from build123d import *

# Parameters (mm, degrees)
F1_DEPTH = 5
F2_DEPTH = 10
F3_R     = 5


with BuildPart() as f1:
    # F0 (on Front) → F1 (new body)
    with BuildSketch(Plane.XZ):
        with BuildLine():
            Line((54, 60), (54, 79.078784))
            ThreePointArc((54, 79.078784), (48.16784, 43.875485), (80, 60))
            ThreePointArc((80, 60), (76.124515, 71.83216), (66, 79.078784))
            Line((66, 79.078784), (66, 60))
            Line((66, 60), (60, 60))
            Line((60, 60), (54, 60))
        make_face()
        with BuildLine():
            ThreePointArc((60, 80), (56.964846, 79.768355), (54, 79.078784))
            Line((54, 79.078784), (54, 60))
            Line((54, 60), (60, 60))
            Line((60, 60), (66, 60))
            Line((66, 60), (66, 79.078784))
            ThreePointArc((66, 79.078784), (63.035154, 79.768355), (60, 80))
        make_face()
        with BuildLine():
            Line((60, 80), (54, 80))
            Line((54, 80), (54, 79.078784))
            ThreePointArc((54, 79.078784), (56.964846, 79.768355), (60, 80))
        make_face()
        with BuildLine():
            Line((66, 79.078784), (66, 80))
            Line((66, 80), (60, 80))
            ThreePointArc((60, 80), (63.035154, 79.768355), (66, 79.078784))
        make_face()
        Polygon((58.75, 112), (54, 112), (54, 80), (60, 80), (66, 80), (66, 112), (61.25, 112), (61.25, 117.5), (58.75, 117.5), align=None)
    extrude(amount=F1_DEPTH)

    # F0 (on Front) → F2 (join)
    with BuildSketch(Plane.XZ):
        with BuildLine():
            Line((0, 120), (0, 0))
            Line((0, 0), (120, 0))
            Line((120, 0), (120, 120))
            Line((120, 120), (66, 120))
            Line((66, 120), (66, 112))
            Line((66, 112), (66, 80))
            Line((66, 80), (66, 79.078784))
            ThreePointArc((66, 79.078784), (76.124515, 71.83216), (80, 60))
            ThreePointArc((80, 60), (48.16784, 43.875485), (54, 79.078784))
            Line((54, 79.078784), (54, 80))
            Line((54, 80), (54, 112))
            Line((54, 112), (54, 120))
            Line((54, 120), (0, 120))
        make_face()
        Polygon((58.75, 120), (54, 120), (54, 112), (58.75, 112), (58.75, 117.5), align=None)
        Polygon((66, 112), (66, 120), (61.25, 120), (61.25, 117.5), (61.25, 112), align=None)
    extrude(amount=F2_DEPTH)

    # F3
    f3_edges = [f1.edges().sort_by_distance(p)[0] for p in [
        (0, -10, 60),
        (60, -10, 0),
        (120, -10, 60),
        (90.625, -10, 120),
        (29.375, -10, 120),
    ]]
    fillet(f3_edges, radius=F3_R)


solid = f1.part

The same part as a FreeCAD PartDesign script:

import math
import FreeCAD as App
import Part
import Sketcher
Q = App.Units.Quantity


def edges_at(feature, points):
    """Names of the edges that pass closest to the given points."""
    edges = feature.Shape.Edges
    near = lambda p: min(range(len(edges)), key=lambda i: edges[i].distToShape(Part.Vertex(*p))[0])
    return sorted({f"Edge{near(p) + 1}" for p in points})

doc = App.newDocument("Part")
body = doc.addObject("PartDesign::Body", "Body")

# Sketch on XZ plane
sketch1 = body.newObject("Sketcher::SketchObject", "Sketch")
sketch1.AttachmentSupport = (doc.getObject("XZ_Plane"), [""])
sketch1.MapMode = "FlatFace"
sketch1.addGeometry(Part.ArcOfCircle(Part.Circle(App.Vector(60, 60, 0), App.Vector(0, 0, 1), 20), math.radians(107), math.radians(360)), False)
sketch1.addGeometry(Part.ArcOfCircle(Part.Circle(App.Vector(60, 60, 0), App.Vector(0, 0, 1), 20), math.radians(0), math.radians(73)), False)
sketch1.addGeometry(Part.LineSegment(App.Vector(66, 79.1, 0), App.Vector(66, 112, 0)), False)
sketch1.addGeometry(Part.LineSegment(App.Vector(66, 112, 0), App.Vector(61.2, 112, 0)), False)
sketch1.addGeometry(Part.LineSegment(App.Vector(61.2, 112, 0), App.Vector(61.2, 117.5, 0)), False)
sketch1.addGeometry(Part.LineSegment(App.Vector(61.2, 117.5, 0), App.Vector(58.8, 117.5, 0)), False)
sketch1.addGeometry(Part.LineSegment(App.Vector(58.8, 117.5, 0), App.Vector(58.8, 112, 0)), False)
sketch1.addGeometry(Part.LineSegment(App.Vector(58.8, 112, 0), App.Vector(54, 112, 0)), False)
sketch1.addGeometry(Part.LineSegment(App.Vector(54, 112, 0), App.Vector(54, 79.1, 0)), False)
sketch1.addConstraint(Sketcher.Constraint("Tangent", 0, 2, 1, 1))
sketch1.addConstraint(Sketcher.Constraint("Coincident", 1, 2, 2, 1))
sketch1.addConstraint(Sketcher.Constraint("Coincident", 2, 2, 3, 1))
sketch1.addConstraint(Sketcher.Constraint("Coincident", 3, 2, 4, 1))
sketch1.addConstraint(Sketcher.Constraint("Coincident", 4, 2, 5, 1))
sketch1.addConstraint(Sketcher.Constraint("Coincident", 5, 2, 6, 1))
sketch1.addConstraint(Sketcher.Constraint("Coincident", 6, 2, 7, 1))
sketch1.addConstraint(Sketcher.Constraint("Coincident", 7, 2, 8, 1))
sketch1.addConstraint(Sketcher.Constraint("Coincident", 8, 2, 0, 1))
sketch1.addConstraint(Sketcher.Constraint("Vertical", 2))
sketch1.addConstraint(Sketcher.Constraint("Horizontal", 3))
sketch1.addConstraint(Sketcher.Constraint("Vertical", 4))
sketch1.addConstraint(Sketcher.Constraint("Horizontal", 5))
sketch1.addConstraint(Sketcher.Constraint("Vertical", 6))
sketch1.addConstraint(Sketcher.Constraint("Horizontal", 7))
sketch1.addConstraint(Sketcher.Constraint("Vertical", 8))
sketch1.addConstraint(Sketcher.Constraint("Equal", 0, 1))
sketch1.addConstraint(Sketcher.Constraint("Horizontal", 1, 3, 0, 2))
sketch1.addConstraint(Sketcher.Constraint("Horizontal", 3, 2, 6, 2))
sketch1.addConstraint(Sketcher.Constraint("Horizontal", 1, 2, 8, 2))
sketch1.addConstraint(Sketcher.Constraint("Equal", 3, 7))
sketch1.addConstraint(Sketcher.Constraint("Radius", 0, Q("20 mm")))
sketch1.addConstraint(Sketcher.Constraint("DistanceX", 5, 2, 5, 1, Q("2.5 mm")))
sketch1.addConstraint(Sketcher.Constraint("DistanceY", 4, 1, 4, 2, Q("5.5 mm")))
sketch1.addConstraint(Sketcher.Constraint("DistanceX", -1, 1, 0, 3, Q("60 mm")))
sketch1.addConstraint(Sketcher.Constraint("DistanceY", -1, 1, 0, 3, Q("60 mm")))
sketch1.addConstraint(Sketcher.Constraint("DistanceX", -1, 1, 1, 2, Q("66 mm")))
sketch1.addConstraint(Sketcher.Constraint("DistanceY", -1, 1, 2, 2, Q("112 mm")))
pad1 = body.newObject("PartDesign::Pad", "Pad")
pad1.Profile = sketch1
pad1.Length = 5

# Sketch on XZ plane
sketch2 = body.newObject("Sketcher::SketchObject", "Sketch001")
sketch2.AttachmentSupport = (doc.getObject("XZ_Plane"), [""])
sketch2.MapMode = "FlatFace"
sketch2.addGeometry(Part.LineSegment(App.Vector(0, 120, 0), App.Vector(0, 0, 0)), False)
sketch2.addGeometry(Part.LineSegment(App.Vector(0, 0, 0), App.Vector(120, 0, 0)), False)
sketch2.addGeometry(Part.LineSegment(App.Vector(120, 0, 0), App.Vector(120, 120, 0)), False)
sketch2.addGeometry(Part.LineSegment(App.Vector(120, 120, 0), App.Vector(61.2, 120, 0)), False)
sketch2.addGeometry(Part.LineSegment(App.Vector(61.2, 120, 0), App.Vector(61.2, 112, 0)), False)
sketch2.addGeometry(Part.LineSegment(App.Vector(61.2, 112, 0), App.Vector(66, 112, 0)), False)
sketch2.addGeometry(Part.LineSegment(App.Vector(66, 112, 0), App.Vector(66, 79.1, 0)), False)
sketch2.addGeometry(Part.ArcOfCircle(Part.Circle(App.Vector(60, 60, 0), App.Vector(0, 0, 1), 20), math.radians(0), math.radians(73)), False)
sketch2.addGeometry(Part.ArcOfCircle(Part.Circle(App.Vector(60, 60, 0), App.Vector(0, 0, 1), 20), math.radians(107), math.radians(360)), False)
sketch2.addGeometry(Part.LineSegment(App.Vector(54, 79.1, 0), App.Vector(54, 112, 0)), False)
sketch2.addGeometry(Part.LineSegment(App.Vector(54, 112, 0), App.Vector(58.8, 112, 0)), False)
sketch2.addGeometry(Part.LineSegment(App.Vector(58.8, 112, 0), App.Vector(58.8, 120, 0)), False)
sketch2.addGeometry(Part.LineSegment(App.Vector(58.8, 120, 0), App.Vector(0, 120, 0)), False)
sketch2.addConstraint(Sketcher.Constraint("Coincident", 0, 2, 1, 1))
sketch2.addConstraint(Sketcher.Constraint("Coincident", 1, 2, 2, 1))
sketch2.addConstraint(Sketcher.Constraint("Coincident", 2, 2, 3, 1))
sketch2.addConstraint(Sketcher.Constraint("Coincident", 3, 2, 4, 1))
sketch2.addConstraint(Sketcher.Constraint("Coincident", 4, 2, 5, 1))
sketch2.addConstraint(Sketcher.Constraint("Coincident", 5, 2, 6, 1))
sketch2.addConstraint(Sketcher.Constraint("Coincident", 6, 2, 7, 2))
sketch2.addConstraint(Sketcher.Constraint("Tangent", 7, 1, 8, 2))
sketch2.addConstraint(Sketcher.Constraint("Coincident", 8, 1, 9, 1))
sketch2.addConstraint(Sketcher.Constraint("Coincident", 9, 2, 10, 1))
sketch2.addConstraint(Sketcher.Constraint("Coincident", 10, 2, 11, 1))
sketch2.addConstraint(Sketcher.Constraint("Coincident", 11, 2, 12, 1))
sketch2.addConstraint(Sketcher.Constraint("Coincident", 12, 2, 0, 1))
sketch2.addConstraint(Sketcher.Constraint("Vertical", 0))
sketch2.addConstraint(Sketcher.Constraint("Horizontal", 1))
sketch2.addConstraint(Sketcher.Constraint("Vertical", 2))
sketch2.addConstraint(Sketcher.Constraint("Horizontal", 3))
sketch2.addConstraint(Sketcher.Constraint("Vertical", 4))
sketch2.addConstraint(Sketcher.Constraint("Horizontal", 5))
sketch2.addConstraint(Sketcher.Constraint("Vertical", 6))
sketch2.addConstraint(Sketcher.Constraint("Vertical", 9))
sketch2.addConstraint(Sketcher.Constraint("Horizontal", 10))
sketch2.addConstraint(Sketcher.Constraint("Vertical", 11))
sketch2.addConstraint(Sketcher.Constraint("Horizontal", 12))
sketch2.addConstraint(Sketcher.Constraint("Coincident", 0, 2, -1, 1))
sketch2.addConstraint(Sketcher.Constraint("Equal", 7, 8))
sketch2.addConstraint(Sketcher.Constraint("Horizontal", 8, 3, 7, 1))
sketch2.addConstraint(Sketcher.Constraint("Horizontal", 6, 2, 8, 1))
sketch2.addConstraint(Sketcher.Constraint("Horizontal", 5, 2, 9, 2))
sketch2.addConstraint(Sketcher.Constraint("Horizontal", 3, 2, 11, 2))
sketch2.addConstraint(Sketcher.Constraint("Equal", 5, 10))
sketch2.addConstraint(Sketcher.Constraint("Equal", 3, 12))
sketch2.addConstraint(Sketcher.Constraint("Equal", 1, 0))
sketch2.addConstraint(Sketcher.Constraint("Radius", 7, Q("20.000001 mm")))
sketch2.addConstraint(Sketcher.Constraint("DistanceX", 1, 1, 1, 2, Q("120 mm")))
sketch2.addConstraint(Sketcher.Constraint("DistanceY", 4, 2, 4, 1, Q("8 mm")))
sketch2.addConstraint(Sketcher.Constraint("DistanceY", -1, 1, 7, 3, Q("60 mm")))
sketch2.addConstraint(Sketcher.Constraint("DistanceX", -1, 1, 5, 2, Q("66 mm")))
sketch2.addConstraint(Sketcher.Constraint("DistanceX", 3, 2, 3, 1, Q("58.75 mm")))
pad2 = body.newObject("PartDesign::Pad", "Pad001")
pad2.Profile = sketch2
pad2.Length = 10
doc.recompute()

fillet = body.newObject("PartDesign::Fillet", "Fillet")
fillet.Base = (pad2, edges_at(pad2, [
    (0, -10, 60),
    (60, -10, 0),
    (120, -10, 60),
    (90.625, -10, 120),
    (29.375, -10, 120),
]))
fillet.Radius = 5

doc.recompute()
